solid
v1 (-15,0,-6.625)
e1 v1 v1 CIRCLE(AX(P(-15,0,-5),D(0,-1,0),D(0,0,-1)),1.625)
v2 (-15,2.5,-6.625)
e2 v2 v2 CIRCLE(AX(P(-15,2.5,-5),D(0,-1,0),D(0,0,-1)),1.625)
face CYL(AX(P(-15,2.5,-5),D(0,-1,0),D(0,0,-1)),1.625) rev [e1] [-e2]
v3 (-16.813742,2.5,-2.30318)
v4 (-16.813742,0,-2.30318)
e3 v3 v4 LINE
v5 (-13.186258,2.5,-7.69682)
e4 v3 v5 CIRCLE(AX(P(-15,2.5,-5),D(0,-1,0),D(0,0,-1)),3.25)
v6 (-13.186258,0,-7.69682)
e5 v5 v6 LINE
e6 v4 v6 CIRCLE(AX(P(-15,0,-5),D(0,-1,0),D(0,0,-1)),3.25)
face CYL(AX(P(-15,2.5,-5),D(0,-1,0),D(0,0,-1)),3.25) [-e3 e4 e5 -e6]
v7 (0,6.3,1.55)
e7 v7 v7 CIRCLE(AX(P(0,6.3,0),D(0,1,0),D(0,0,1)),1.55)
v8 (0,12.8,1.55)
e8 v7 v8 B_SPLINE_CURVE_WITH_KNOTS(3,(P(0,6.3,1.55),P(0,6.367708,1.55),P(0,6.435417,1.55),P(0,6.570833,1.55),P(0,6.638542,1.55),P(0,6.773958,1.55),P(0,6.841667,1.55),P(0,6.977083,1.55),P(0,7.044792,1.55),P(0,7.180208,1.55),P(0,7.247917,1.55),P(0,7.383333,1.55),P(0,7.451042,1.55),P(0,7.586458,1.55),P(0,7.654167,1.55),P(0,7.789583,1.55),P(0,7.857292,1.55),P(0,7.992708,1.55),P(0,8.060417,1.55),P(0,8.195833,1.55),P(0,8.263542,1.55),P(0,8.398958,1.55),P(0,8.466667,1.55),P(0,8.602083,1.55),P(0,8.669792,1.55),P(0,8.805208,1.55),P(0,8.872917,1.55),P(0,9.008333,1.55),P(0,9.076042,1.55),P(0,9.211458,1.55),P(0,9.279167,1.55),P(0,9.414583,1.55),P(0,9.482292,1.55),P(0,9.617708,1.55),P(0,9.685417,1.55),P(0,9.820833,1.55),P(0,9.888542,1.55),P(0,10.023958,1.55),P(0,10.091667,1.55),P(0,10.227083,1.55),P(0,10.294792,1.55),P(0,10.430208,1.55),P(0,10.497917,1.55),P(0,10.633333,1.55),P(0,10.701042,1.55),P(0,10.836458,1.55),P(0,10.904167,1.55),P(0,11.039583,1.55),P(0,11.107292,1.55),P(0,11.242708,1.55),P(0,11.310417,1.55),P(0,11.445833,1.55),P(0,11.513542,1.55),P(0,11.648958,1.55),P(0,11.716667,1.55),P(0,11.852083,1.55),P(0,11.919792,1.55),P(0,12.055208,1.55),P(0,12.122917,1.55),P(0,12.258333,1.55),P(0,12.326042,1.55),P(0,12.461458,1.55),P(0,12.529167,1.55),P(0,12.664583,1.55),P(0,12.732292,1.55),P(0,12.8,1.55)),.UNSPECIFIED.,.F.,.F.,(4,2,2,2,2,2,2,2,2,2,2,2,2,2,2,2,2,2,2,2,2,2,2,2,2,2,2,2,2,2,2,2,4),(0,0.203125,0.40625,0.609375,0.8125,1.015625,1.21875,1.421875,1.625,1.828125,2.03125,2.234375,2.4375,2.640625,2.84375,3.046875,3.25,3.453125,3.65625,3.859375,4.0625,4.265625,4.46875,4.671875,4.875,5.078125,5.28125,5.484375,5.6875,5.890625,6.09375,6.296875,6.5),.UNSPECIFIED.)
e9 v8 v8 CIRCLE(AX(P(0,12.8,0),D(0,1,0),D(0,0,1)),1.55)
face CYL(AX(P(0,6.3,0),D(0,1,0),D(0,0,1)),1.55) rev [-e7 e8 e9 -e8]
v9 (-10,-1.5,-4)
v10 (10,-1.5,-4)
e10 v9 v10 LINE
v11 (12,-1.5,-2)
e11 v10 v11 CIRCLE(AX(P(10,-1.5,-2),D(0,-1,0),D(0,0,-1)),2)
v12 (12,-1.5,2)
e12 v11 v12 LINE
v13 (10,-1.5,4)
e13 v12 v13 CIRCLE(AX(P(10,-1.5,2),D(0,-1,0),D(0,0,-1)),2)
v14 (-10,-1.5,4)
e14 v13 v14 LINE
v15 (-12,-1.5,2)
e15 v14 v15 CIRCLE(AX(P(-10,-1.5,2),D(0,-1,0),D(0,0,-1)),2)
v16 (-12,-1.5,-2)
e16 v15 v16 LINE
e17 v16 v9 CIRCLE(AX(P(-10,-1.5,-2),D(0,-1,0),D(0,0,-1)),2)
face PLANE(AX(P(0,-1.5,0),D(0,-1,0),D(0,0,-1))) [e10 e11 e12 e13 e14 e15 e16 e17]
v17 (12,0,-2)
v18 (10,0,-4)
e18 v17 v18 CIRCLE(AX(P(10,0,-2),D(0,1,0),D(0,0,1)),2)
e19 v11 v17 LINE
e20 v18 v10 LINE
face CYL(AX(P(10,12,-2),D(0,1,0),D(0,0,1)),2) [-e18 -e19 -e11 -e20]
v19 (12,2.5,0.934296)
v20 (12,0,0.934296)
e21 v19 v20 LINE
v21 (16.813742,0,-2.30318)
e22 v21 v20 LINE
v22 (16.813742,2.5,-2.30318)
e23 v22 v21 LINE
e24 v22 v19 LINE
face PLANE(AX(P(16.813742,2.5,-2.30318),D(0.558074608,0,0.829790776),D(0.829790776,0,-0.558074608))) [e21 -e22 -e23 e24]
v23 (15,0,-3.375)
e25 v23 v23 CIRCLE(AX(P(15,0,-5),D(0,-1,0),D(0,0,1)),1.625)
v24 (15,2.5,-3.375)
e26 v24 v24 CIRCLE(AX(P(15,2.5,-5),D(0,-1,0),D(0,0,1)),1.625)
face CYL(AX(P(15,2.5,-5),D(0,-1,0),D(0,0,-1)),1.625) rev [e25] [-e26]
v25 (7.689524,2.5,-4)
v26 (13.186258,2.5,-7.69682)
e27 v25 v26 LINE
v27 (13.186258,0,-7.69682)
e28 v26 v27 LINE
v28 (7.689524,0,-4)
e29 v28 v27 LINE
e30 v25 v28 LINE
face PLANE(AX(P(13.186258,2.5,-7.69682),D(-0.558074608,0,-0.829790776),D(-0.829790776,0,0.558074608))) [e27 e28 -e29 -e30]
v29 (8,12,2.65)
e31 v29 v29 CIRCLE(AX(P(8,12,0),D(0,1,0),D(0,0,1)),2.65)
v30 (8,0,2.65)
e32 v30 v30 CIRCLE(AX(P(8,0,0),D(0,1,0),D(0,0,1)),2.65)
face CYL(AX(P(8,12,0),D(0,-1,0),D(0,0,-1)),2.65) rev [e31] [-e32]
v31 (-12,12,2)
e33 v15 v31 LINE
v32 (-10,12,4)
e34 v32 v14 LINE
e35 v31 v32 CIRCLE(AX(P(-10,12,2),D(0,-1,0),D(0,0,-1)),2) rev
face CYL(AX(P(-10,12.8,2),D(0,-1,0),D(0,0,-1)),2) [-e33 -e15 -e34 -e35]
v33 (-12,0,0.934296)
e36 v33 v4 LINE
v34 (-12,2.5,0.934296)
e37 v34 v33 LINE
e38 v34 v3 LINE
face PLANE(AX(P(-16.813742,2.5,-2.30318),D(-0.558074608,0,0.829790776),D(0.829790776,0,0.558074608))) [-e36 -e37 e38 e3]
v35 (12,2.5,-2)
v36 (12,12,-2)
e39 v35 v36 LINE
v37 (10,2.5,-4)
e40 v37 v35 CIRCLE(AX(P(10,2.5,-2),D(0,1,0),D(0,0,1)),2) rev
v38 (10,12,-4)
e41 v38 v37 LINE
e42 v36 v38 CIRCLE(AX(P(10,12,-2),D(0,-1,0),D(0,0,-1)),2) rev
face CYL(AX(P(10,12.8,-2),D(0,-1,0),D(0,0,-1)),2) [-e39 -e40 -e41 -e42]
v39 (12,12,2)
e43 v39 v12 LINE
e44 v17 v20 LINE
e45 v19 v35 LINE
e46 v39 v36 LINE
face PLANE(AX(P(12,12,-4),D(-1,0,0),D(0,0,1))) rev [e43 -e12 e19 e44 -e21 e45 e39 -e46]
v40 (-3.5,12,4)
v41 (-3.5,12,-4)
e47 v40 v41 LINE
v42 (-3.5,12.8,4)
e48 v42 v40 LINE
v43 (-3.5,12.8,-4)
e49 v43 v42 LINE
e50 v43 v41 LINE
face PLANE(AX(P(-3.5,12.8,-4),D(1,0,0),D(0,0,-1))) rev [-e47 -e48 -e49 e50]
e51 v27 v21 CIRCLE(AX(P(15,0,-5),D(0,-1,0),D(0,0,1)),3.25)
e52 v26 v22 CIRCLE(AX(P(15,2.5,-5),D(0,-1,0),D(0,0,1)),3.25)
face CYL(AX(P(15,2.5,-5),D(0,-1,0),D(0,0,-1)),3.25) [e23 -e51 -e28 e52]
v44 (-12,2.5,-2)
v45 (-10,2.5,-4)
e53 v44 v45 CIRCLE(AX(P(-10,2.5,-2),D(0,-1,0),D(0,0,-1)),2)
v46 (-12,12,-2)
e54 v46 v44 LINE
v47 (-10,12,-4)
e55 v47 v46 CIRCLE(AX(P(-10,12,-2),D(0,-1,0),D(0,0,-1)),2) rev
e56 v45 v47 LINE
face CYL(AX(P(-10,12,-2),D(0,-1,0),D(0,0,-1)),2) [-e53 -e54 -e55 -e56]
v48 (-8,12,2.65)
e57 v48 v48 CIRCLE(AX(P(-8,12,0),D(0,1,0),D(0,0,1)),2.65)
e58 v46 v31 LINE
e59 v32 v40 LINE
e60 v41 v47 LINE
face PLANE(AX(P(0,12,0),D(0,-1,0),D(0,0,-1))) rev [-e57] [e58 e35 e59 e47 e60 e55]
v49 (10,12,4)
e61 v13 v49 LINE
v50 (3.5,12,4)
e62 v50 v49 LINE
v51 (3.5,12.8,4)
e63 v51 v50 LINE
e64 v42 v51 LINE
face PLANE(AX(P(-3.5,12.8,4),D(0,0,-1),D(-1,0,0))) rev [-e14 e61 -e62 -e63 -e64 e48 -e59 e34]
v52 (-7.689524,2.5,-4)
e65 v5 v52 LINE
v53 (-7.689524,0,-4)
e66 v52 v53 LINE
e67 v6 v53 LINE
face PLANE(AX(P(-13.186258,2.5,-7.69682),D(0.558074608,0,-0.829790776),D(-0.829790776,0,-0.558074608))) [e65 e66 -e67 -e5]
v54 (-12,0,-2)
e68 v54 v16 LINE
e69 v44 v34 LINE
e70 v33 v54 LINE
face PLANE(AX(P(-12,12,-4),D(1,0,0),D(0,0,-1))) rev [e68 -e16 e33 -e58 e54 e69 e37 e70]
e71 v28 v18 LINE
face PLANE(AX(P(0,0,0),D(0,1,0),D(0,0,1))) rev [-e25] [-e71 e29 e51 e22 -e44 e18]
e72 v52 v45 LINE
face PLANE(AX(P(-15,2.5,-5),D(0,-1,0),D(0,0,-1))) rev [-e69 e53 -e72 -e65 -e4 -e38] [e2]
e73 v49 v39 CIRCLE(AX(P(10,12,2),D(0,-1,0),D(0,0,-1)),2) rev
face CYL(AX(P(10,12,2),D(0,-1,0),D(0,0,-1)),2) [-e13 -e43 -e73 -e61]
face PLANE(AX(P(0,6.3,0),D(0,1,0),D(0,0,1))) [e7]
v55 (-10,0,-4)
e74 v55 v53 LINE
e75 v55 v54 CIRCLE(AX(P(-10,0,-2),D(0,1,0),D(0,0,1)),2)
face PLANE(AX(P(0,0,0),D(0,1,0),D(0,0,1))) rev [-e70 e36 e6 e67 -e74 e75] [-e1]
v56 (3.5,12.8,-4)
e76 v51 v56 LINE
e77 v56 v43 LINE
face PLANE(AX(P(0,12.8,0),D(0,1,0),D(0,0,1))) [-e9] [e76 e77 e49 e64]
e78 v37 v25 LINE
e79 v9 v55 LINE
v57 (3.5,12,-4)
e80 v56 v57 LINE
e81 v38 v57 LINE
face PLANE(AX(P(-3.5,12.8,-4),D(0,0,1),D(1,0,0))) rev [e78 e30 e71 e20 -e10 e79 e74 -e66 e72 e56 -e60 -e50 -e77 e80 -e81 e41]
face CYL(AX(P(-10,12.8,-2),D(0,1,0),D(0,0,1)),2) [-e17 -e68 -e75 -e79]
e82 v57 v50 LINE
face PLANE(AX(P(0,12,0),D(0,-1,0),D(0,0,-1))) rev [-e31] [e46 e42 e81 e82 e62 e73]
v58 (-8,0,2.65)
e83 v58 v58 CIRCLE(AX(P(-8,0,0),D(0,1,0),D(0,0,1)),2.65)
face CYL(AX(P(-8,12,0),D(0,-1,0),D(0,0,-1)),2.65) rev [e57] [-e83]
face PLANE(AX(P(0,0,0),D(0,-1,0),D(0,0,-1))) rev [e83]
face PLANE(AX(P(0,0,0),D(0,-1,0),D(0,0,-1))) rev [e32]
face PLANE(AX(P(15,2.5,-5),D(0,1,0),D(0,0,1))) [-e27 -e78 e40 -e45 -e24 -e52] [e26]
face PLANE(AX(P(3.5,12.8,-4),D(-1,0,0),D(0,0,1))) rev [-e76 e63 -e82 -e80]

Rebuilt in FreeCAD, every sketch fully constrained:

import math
import FreeCAD as App
import Part
import Sketcher

V = App.Vector
Q = App.Units.Quantity


def edges_at(feature, points):
    """Names of the edges that pass closest to the given points."""
    edges = feature.Shape.Edges
    near = lambda p: min(range(len(edges)), key=lambda i: edges[i].distToShape(Part.Vertex(*p))[0])
    return sorted({f"Edge{near(p) + 1}" for p in points})

doc = App.newDocument("Part")
params = doc.addObject("Spreadsheet::Sheet", "Params")
for row, (alias, value) in enumerate([
    ("sketch1_width", "7 mm"),
    ("sketch1_height", "8 mm"),
    ("pad1_length", "12.8 mm"),
    ("sketch2_diameter", "5.3 mm"),
    ("sketch2_width", "24 mm"),
    ("sketch2_height", "8 mm"),
    ("pad2_length", "12 mm"),
    ("sketch3_diameter", "3.1 mm"),
    ("pocket1_length", "6.5 mm"),
    ("sketch4_diameter", "3.25 mm"),
    ("sketch4_radius", "3.25 mm"),
    ("pad3_length", "2.5 mm"),
    ("sketch5_width", "24 mm"),
    ("sketch5_height", "8 mm"),
    ("pad4_length", "1.5 mm"),
    ("fillet_radius", "2 mm"),
], start=1):
    params.set(f"A{row}", alias)
    params.set(f"B{row}", "=" + value)
    params.setAlias(f"B{row}", alias)

body = doc.addObject("PartDesign::Body", "Body")

sketch1 = body.newObject("Sketcher::SketchObject", "Sketch")
sketch1.AttachmentSupport = (doc.getObject("XZ_Plane"), [""])
sketch1.MapMode = "FlatFace"
sketch1.addGeometry([
    Part.LineSegment(V(4, 4, 0), V(4, -4, 0)),
    Part.LineSegment(V(4, -4, 0), V(-4, -4, 0)),
    Part.LineSegment(V(-4, -4, 0), V(-4, 4, 0)),
    Part.LineSegment(V(-4, 4, 0), V(4, 4, 0)),
], False)
sketch1.addConstraint([
    Sketcher.Constraint("Coincident", 0, 2, 1, 1),
    Sketcher.Constraint("Coincident", 1, 2, 2, 1),
    Sketcher.Constraint("Coincident", 2, 2, 3, 1),
    Sketcher.Constraint("Coincident", 3, 2, 0, 1),
    Sketcher.Constraint("Vertical", 0),
    Sketcher.Constraint("Horizontal", 1),
    Sketcher.Constraint("Vertical", 2),
    Sketcher.Constraint("Horizontal", 3),
    Sketcher.Constraint("Symmetric", 0, 2, 2, 2, -1, 1),
    Sketcher.Constraint("DistanceX", 1, 2, 1, 1, Q("7 mm")),
    Sketcher.Constraint("DistanceY", 0, 2, 0, 1, Q("8 mm")),
])
sketch1.setExpression("Constraints[9]", "Params.sketch1_width")
sketch1.setExpression("Constraints[10]", "Params.sketch1_height")
pad1 = body.newObject("PartDesign::Pad", "Pad")
pad1.Profile = sketch1
pad1.setExpression("Length", "Params.pad1_length")
pad1.Reversed = True

sketch2 = body.newObject("Sketcher::SketchObject", "Sketch001")
sketch2.AttachmentSupport = (doc.getObject("XZ_Plane"), [""])
sketch2.MapMode = "FlatFace"
sketch2.addGeometry([
    Part.LineSegment(V(12, 4, 0), V(12, -4, 0)),
    Part.LineSegment(V(12, -4, 0), V(-12, -4, 0)),
    Part.LineSegment(V(-12, -4, 0), V(-12, 4, 0)),
    Part.LineSegment(V(-12, 4, 0), V(12, 4, 0)),
    Part.Circle(V(8, 0, 0), V(0, 0, 1), 2.6),
    Part.Circle(V(-8, 0, 0), V(0, 0, 1), 2.6),
], False)
sketch2.addConstraint([
    Sketcher.Constraint("Coincident", 0, 2, 1, 1),
    Sketcher.Constraint("Coincident", 1, 2, 2, 1),
    Sketcher.Constraint("Coincident", 2, 2, 3, 1),
    Sketcher.Constraint("Coincident", 3, 2, 0, 1),
    Sketcher.Constraint("Vertical", 0),
    Sketcher.Constraint("Horizontal", 1),
    Sketcher.Constraint("Vertical", 2),
    Sketcher.Constraint("Horizontal", 3),
    Sketcher.Constraint("Equal", 4, 5),
    Sketcher.Constraint("Symmetric", 4, 3, 5, 3, -1, 1),
    Sketcher.Constraint("Symmetric", 0, 2, 2, 2, -1, 1),
    Sketcher.Constraint("PointOnObject", 4, 3, -1),
    Sketcher.Constraint("Diameter", 4, Q("5.3 mm")),
    Sketcher.Constraint("DistanceX", 1, 2, 1, 1, Q("24 mm")),
    Sketcher.Constraint("DistanceY", 0, 2, 0, 1, Q("8 mm")),
    Sketcher.Constraint("DistanceX", -1, 1, 4, 3, Q("8 mm")),
])
sketch2.setExpression("Constraints[12]", "Params.sketch2_diameter")
sketch2.setExpression("Constraints[13]", "Params.sketch2_width")
sketch2.setExpression("Constraints[14]", "Params.sketch2_height")
pad2 = body.newObject("PartDesign::Pad", "Pad001")
pad2.Profile = sketch2
pad2.setExpression("Length", "Params.pad2_length")
pad2.Reversed = True

sketch3 = body.newObject("Sketcher::SketchObject", "Sketch002")
sketch3.AttachmentSupport = (doc.getObject("XZ_Plane"), [""])
sketch3.MapMode = "FlatFace"
sketch3.AttachmentOffset = App.Placement(V(0, 0, -12.8), App.Rotation())
sketch3.addGeometry(Part.Circle(V(0, 0, 0), V(0, 0, 1), 1.6), False)
sketch3.addConstraint([
    Sketcher.Constraint("Coincident", 0, 3, -1, 1),
    Sketcher.Constraint("Diameter", 0, Q("3.1 mm")),
])
sketch3.setExpression("Constraints[1]", "Params.sketch3_diameter")
pocket1 = body.newObject("PartDesign::Pocket", "Pocket")
pocket1.Profile = sketch3
pocket1.setExpression("Length", "Params.pocket1_length")
pocket1.Reversed = True

sketch4 = body.newObject("Sketcher::SketchObject", "Sketch003")
sketch4.AttachmentSupport = (doc.getObject("XZ_Plane"), [""])
sketch4.MapMode = "FlatFace"
sketch4.addGeometry([
    Part.LineSegment(V(-12, 0.9, 0), V(-16.8, -2.3, 0)),
    Part.ArcOfCircle(Part.Circle(V(-15, -5, 0), V(0, 0, 1), 3.2), math.radians(124), math.radians(304)),
    Part.LineSegment(V(-13.2, -7.7, 0), V(-7.7, -4, 0)),
    Part.LineSegment(V(-7.7, -4, 0), V(-12, -4, 0)),
    Part.LineSegment(V(-12, -4, 0), V(-12, 0.9, 0)),
    Part.Circle(V(-15, -5, 0), V(0, 0, 1), 1.6),
    Part.LineSegment(V(16.8, -2.3, 0), V(12, 0.9, 0)),
    Part.LineSegment(V(12, 0.9, 0), V(12, -4, 0)),
    Part.LineSegment(V(12, -4, 0), V(7.7, -4, 0)),
    Part.LineSegment(V(7.7, -4, 0), V(13.2, -7.7, 0)),
    Part.ArcOfCircle(Part.Circle(V(15, -5, 0), V(0, 0, 1), 3.2), math.radians(-124), math.radians(56)),
    Part.Circle(V(15, -5, 0), V(0, 0, 1), 1.6),
], False)
sketch4.addConstraint([
    Sketcher.Constraint("Tangent", 0, 2, 1, 1),
    Sketcher.Constraint("Tangent", 1, 2, 2, 1),
    Sketcher.Constraint("Coincident", 2, 2, 3, 1),
    Sketcher.Constraint("Coincident", 3, 2, 4, 1),
    Sketcher.Constraint("Coincident", 4, 2, 0, 1),
    Sketcher.Constraint("Coincident", 6, 2, 7, 1),
    Sketcher.Constraint("Coincident", 7, 2, 8, 1),
    Sketcher.Constraint("Coincident", 8, 2, 9, 1),
    Sketcher.Constraint("Tangent", 9, 2, 10, 1),
    Sketcher.Constraint("Tangent", 10, 2, 6, 1),
    Sketcher.Constraint("Horizontal", 3),
    Sketcher.Constraint("Vertical", 4),
    Sketcher.Constraint("Vertical", 7),
    Sketcher.Constraint("Horizontal", 8),
    Sketcher.Constraint("Coincident", 5, 3, 1, 3),
    Sketcher.Constraint("Coincident", 11, 3, 10, 3),
    Sketcher.Constraint("Equal", 1, 10),
    Sketcher.Constraint("Equal", 5, 11),
    Sketcher.Constraint("Symmetric", 1, 3, 10, 3, -2),
    Sketcher.Constraint("Symmetric", 4, 2, 6, 2, -2),
    Sketcher.Constraint("Symmetric", 2, 2, 8, 2, -2),
    Sketcher.Constraint("Parallel", 0, 2),
    Sketcher.Constraint("Diameter", 5, Q("3.25 mm")),
    Sketcher.Constraint("Radius", 1, Q("3.25 mm")),
    Sketcher.Constraint("DistanceX", 1, 3, -1, 1, Q("15 mm")),
    Sketcher.Constraint("DistanceY", 1, 3, -1, 1, Q("5 mm")),
    Sketcher.Constraint("DistanceY", 2, 2, -1, 1, Q("4 mm")),
    Sketcher.Constraint("DistanceX", 3, 2, -1, 1, Q("12 mm")),
    Sketcher.Constraint("Distance", 2, Q("6.62424 mm")),
])
sketch4.setExpression("Constraints[22]", "Params.sketch4_diameter")
sketch4.setExpression("Constraints[23]", "Params.sketch4_radius")
pad3 = body.newObject("PartDesign::Pad", "Pad002")
pad3.Profile = sketch4
pad3.setExpression("Length", "Params.pad3_length")
pad3.Reversed = True

sketch5 = body.newObject("Sketcher::SketchObject", "Sketch004")
sketch5.AttachmentSupport = (doc.getObject("XZ_Plane"), [""])
sketch5.MapMode = "FlatFace"
sketch5.addGeometry([
    Part.LineSegment(V(-12, 4, 0), V(-12, -4, 0)),
    Part.LineSegment(V(-12, -4, 0), V(12, -4, 0)),
    Part.LineSegment(V(12, -4, 0), V(12, 4, 0)),
    Part.LineSegment(V(12, 4, 0), V(-12, 4, 0)),
], False)
sketch5.addConstraint([
    Sketcher.Constraint("Coincident", 0, 2, 1, 1),
    Sketcher.Constraint("Coincident", 1, 2, 2, 1),
    Sketcher.Constraint("Coincident", 2, 2, 3, 1),
    Sketcher.Constraint("Coincident", 3, 2, 0, 1),
    Sketcher.Constraint("Vertical", 0),
    Sketcher.Constraint("Horizontal", 1),
    Sketcher.Constraint("Vertical", 2),
    Sketcher.Constraint("Horizontal", 3),
    Sketcher.Constraint("Symmetric", 0, 2, 2, 2, -1, 1),
    Sketcher.Constraint("DistanceX", 1, 1, 1, 2, Q("24 mm")),
    Sketcher.Constraint("DistanceY", 0, 2, 0, 1, Q("8 mm")),
])
sketch5.setExpression("Constraints[9]", "Params.sketch5_width")
sketch5.setExpression("Constraints[10]", "Params.sketch5_height")
pad4 = body.newObject("PartDesign::Pad", "Pad003")
pad4.Profile = sketch5
pad4.setExpression("Length", "Params.pad4_length")
doc.recompute()

fillet = body.newObject("PartDesign::Fillet", "Fillet")
fillet.Base = (pad4, edges_at(pad4, [
    (12, 7.25, -4),
    (-12, 5.25, 4),
    (12, 5.25, 4),
    (-12, 7.25, -4),
    (-12, -0.75, -4),
    (12, -0.75, -4),
]))
fillet.setExpression("Radius", "Params.fillet_radius")

doc.recompute()
